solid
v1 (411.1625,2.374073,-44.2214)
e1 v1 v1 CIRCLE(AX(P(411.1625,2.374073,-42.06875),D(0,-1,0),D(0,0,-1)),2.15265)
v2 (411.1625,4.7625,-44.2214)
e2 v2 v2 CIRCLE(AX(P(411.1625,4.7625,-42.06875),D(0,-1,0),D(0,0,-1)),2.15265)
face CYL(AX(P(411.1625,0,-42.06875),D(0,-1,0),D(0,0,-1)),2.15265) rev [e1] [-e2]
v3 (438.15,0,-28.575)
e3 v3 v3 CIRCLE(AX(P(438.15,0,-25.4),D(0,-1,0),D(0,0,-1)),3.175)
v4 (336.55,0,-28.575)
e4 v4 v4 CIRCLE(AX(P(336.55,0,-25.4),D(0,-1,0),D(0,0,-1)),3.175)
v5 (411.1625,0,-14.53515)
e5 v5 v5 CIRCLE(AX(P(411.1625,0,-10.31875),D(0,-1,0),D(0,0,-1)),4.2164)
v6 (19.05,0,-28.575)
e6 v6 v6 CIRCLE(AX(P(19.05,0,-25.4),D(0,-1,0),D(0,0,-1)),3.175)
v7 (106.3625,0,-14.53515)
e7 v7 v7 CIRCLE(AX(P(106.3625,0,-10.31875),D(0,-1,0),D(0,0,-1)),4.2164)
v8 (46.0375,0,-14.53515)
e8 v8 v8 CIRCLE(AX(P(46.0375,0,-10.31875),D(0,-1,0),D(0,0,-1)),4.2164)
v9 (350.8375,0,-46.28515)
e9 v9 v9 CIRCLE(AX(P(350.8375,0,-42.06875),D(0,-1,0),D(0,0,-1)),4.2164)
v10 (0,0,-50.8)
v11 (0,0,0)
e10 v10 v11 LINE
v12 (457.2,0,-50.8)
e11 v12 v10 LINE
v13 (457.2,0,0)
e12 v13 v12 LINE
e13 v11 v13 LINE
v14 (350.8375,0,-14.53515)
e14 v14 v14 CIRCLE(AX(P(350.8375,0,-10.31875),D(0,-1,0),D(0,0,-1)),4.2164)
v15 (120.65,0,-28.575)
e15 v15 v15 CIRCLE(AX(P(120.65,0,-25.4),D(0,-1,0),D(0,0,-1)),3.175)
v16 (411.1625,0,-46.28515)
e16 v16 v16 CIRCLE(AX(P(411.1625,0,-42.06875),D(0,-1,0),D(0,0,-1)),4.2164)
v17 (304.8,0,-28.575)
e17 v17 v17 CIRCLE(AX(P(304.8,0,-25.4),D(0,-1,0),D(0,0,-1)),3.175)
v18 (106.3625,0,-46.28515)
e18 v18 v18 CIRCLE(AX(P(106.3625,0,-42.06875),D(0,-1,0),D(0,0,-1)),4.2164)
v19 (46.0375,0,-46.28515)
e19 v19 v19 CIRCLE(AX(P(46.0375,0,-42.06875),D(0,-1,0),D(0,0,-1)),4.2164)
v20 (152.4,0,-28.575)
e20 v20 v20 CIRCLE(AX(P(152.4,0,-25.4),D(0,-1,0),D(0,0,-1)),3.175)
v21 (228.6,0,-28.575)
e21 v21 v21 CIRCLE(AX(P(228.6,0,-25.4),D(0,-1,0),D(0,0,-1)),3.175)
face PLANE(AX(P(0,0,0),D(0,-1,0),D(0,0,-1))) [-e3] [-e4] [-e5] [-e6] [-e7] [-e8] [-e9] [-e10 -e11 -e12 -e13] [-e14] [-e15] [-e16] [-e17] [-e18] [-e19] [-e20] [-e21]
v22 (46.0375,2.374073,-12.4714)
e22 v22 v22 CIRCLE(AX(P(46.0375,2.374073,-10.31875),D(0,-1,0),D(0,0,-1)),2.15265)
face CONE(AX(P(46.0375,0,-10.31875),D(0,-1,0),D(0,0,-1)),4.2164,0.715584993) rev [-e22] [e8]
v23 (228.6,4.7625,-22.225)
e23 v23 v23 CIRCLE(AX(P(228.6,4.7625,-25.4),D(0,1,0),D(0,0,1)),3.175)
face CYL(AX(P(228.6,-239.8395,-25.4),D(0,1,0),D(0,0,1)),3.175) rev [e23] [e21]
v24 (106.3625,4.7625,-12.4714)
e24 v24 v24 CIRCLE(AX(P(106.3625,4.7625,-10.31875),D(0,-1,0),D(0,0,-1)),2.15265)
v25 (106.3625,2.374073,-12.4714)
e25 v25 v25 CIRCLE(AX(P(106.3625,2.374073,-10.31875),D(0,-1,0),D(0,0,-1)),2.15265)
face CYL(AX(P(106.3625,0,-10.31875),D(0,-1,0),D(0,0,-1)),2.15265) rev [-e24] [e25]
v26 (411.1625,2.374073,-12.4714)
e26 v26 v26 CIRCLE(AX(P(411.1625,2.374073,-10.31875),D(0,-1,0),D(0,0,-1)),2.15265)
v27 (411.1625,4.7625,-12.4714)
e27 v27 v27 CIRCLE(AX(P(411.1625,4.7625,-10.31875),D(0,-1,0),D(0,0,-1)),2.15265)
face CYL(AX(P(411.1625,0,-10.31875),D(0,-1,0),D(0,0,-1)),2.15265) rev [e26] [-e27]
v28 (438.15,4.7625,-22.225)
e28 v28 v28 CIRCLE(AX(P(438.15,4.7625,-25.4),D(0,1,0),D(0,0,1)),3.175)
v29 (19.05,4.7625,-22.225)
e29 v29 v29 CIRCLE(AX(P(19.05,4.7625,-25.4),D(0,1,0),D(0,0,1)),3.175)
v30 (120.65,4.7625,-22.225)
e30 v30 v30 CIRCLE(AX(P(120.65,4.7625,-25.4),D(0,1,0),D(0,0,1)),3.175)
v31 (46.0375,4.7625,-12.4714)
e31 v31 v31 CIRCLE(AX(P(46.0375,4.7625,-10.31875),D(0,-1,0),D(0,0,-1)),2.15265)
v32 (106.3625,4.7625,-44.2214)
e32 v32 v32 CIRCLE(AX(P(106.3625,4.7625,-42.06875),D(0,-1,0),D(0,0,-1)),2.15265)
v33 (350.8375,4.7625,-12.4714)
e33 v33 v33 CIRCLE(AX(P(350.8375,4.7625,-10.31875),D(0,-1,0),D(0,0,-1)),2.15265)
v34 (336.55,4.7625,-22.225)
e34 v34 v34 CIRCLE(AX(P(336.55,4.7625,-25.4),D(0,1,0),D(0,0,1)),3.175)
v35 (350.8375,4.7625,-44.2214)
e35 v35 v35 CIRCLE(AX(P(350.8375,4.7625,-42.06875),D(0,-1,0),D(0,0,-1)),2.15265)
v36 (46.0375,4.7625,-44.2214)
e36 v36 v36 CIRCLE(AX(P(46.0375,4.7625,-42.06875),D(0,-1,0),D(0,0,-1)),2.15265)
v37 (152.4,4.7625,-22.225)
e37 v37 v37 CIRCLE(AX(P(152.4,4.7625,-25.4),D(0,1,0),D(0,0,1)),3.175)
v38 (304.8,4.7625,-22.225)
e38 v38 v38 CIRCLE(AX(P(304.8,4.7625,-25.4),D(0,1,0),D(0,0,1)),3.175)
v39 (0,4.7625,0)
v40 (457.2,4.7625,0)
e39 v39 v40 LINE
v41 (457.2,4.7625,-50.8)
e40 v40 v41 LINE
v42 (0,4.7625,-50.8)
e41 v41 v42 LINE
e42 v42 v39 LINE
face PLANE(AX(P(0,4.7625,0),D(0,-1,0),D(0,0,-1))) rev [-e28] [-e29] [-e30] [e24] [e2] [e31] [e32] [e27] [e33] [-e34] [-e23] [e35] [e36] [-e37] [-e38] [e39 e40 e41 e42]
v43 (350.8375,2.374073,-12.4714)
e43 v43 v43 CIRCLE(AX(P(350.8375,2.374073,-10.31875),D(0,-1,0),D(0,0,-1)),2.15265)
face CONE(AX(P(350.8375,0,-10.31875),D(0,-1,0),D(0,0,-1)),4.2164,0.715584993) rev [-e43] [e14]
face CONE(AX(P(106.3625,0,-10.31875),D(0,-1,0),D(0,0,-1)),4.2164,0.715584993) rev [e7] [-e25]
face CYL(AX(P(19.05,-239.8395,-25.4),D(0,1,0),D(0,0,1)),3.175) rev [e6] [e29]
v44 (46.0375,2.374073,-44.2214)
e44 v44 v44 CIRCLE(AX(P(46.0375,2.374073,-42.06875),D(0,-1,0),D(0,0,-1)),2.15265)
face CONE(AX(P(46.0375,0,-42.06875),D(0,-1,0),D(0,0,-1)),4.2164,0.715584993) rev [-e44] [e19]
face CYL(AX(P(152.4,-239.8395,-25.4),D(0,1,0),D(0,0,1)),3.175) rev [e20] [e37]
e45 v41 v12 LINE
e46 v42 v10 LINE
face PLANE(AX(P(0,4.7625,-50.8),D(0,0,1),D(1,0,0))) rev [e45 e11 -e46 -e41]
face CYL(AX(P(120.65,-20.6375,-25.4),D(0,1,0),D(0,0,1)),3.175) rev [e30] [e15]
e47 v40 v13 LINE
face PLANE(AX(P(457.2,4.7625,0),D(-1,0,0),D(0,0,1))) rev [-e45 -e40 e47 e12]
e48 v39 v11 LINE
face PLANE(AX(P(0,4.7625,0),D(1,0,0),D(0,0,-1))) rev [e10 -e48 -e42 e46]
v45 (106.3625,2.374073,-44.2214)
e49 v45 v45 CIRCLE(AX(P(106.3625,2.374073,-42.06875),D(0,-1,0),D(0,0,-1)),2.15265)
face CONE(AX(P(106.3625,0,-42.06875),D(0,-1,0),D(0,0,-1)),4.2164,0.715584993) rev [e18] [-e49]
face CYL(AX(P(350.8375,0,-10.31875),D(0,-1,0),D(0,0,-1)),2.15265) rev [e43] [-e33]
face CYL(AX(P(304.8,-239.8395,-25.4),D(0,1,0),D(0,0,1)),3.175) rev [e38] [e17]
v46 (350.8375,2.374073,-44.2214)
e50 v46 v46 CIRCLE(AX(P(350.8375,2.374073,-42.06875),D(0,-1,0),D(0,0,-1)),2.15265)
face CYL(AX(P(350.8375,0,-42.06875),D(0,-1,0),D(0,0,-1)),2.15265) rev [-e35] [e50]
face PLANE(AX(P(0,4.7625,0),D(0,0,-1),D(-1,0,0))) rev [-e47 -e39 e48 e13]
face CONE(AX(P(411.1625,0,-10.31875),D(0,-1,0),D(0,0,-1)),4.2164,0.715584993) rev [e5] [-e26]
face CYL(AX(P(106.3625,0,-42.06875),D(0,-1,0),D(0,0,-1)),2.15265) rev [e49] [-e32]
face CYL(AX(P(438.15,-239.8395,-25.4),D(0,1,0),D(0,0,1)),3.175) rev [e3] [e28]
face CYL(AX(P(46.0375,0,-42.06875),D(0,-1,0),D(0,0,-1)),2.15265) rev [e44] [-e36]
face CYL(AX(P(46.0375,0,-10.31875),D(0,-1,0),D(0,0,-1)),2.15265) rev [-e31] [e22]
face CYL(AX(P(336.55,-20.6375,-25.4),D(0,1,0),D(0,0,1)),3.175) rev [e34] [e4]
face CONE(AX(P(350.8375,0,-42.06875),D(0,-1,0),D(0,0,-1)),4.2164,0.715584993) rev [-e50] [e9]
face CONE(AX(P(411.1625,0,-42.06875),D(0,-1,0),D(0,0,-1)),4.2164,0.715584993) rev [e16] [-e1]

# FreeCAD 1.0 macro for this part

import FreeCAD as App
import Part
import Sketcher

V = App.Vector
Q = App.Units.Quantity


def add_polygon(sketch, points):
    """Adds a closed chain of lines whose ends are joined by coincident constraints."""
    first, n = sketch.GeometryCount, len(points)
    for a, b in zip(points, points[1:] + points[:1]):
        sketch.addGeometry(Part.LineSegment(App.Vector(*a, 0), App.Vector(*b, 0)), False)
    for i in range(n):
        sketch.addConstraint(Sketcher.Constraint("Coincident", first + i, 2, first + (i + 1) % n, 1))

doc = App.newDocument("Part")
body = doc.addObject("PartDesign::Body", "Body")

# Sketch on XZ plane
sketch1 = body.newObject("Sketcher::SketchObject", "Sketch")
sketch1.AttachmentSupport = (doc.getObject("XZ_Plane"), [""])
sketch1.MapMode = "FlatFace"
add_polygon(sketch1, [(0, -50.8), (0, 0), (457.2, 0), (457.2, -50.8)])  # lines 0-3
sketch1.addConstraint(Sketcher.Constraint("Vertical", 0))
sketch1.addConstraint(Sketcher.Constraint("Horizontal", 1))
sketch1.addConstraint(Sketcher.Constraint("Vertical", 2))
sketch1.addConstraint(Sketcher.Constraint("Horizontal", 3))
sketch1.addConstraint(Sketcher.Constraint("Coincident", 0, 2, -1, 1))
sketch1.addConstraint(Sketcher.Constraint("DistanceX", 1, 1, 1, 2, Q("18 in")))
sketch1.addConstraint(Sketcher.Constraint("DistanceY", 0, 1, 0, 2, Q("2 in")))
pad1 = body.newObject("PartDesign::Pad", "Pad")
pad1.Profile = sketch1
pad1.Length = Q("0.1875 in")
pad1.Reversed = True

# Sketch on XZ plane
sketch2 = body.newObject("Sketcher::SketchObject", "Sketch001")
sketch2.AttachmentSupport = (doc.getObject("XZ_Plane"), [""])
sketch2.MapMode = "FlatFace"
sketch2.AttachmentOffset = App.Placement(V(0, 0, -0.1875 * 25.4), App.Rotation())
sketch2.addGeometry(Part.Circle(V(19.05, -25.4, 0), V(0, 0, 1), 3.175), False)
sketch2.addGeometry(Part.Circle(V(438.15, -25.4, 0), V(0, 0, 1), 3.175), False)
sketch2.addConstraint(Sketcher.Constraint("Equal", 0, 1))
sketch2.addConstraint(Sketcher.Constraint("Horizontal", 0, 3, 1, 3))
sketch2.addConstraint(Sketcher.Constraint("Diameter", 0, Q("0.25 in")))
sketch2.addConstraint(Sketcher.Constraint("DistanceY", 0, 3, -1, 1, Q("1 in")))
sketch2.addConstraint(Sketcher.Constraint("DistanceX", 0, 3, 1, 3, Q("16.5 in")))
sketch2.addConstraint(Sketcher.Constraint("DistanceX", -1, 1, 0, 3, Q("0.75 in")))
pocket1 = body.newObject("PartDesign::Pocket", "Pocket")
pocket1.Profile = sketch2
pocket1.Length = Q("9.63 in")
pocket1.Reversed = True

# Sketch on XZ plane
sketch3 = body.newObject("Sketcher::SketchObject", "Sketch002")
sketch3.AttachmentSupport = (doc.getObject("XZ_Plane"), [""])
sketch3.MapMode = "FlatFace"
sketch3.AttachmentOffset = App.Placement(V(0, 0, -0.1875 * 25.4), App.Rotation())
sketch3.addGeometry(Part.Circle(V(152.4, -25.4, 0), V(0, 0, 1), 3.175), False)
sketch3.addGeometry(Part.Circle(V(304.8, -25.4, 0), V(0, 0, 1), 3.175), False)
sketch3.addGeometry(Part.Circle(V(228.6, -25.4, 0), V(0, 0, 1), 3.175), False)
sketch3.addConstraint(Sketcher.Constraint("Equal", 0, 1))
sketch3.addConstraint(Sketcher.Constraint("Equal", 1, 2))
sketch3.addConstraint(Sketcher.Constraint("Horizontal", 0, 3, 1, 3))
sketch3.addConstraint(Sketcher.Constraint("Horizontal", 1, 3, 2, 3))
sketch3.addConstraint(Sketcher.Constraint("Diameter", 0, Q("0.25 in")))
sketch3.addConstraint(Sketcher.Constraint("DistanceX", -1, 1, 0, 3, Q("6 in")))
sketch3.addConstraint(Sketcher.Constraint("DistanceY", 0, 3, -1, 1, Q("1 in")))
sketch3.addConstraint(Sketcher.Constraint("DistanceX", -1, 1, 1, 3, Q("12 in")))
sketch3.addConstraint(Sketcher.Constraint("DistanceX", -1, 1, 2, 3, Q("9 in")))
pocket2 = body.newObject("PartDesign::Pocket", "Pocket001")
pocket2.Profile = sketch3
pocket2.Length = Q("9.63 in")
pocket2.Reversed = True

# Sketch on XZ plane
sketch4 = body.newObject("Sketcher::SketchObject", "Sketch003")
sketch4.AttachmentSupport = (doc.getObject("XZ_Plane"), [""])
sketch4.MapMode = "FlatFace"
sketch4.AttachmentOffset = App.Placement(V(0, 0, -0.1875 * 25.4), App.Rotation())
sketch4.addGeometry(Part.Circle(V(120.65, -25.4, 0), V(0, 0, 1), 3.175), False)
sketch4.addGeometry(Part.Circle(V(336.55, -25.4, 0), V(0, 0, 1), 3.175), False)
sketch4.addConstraint(Sketcher.Constraint("Equal", 0, 1))
sketch4.addConstraint(Sketcher.Constraint("Horizontal", 0, 3, 1, 3))
sketch4.addConstraint(Sketcher.Constraint("Diameter", 0, Q("0.25 in")))
sketch4.addConstraint(Sketcher.Constraint("DistanceY", 0, 3, -1, 1, Q("1 in")))
sketch4.addConstraint(Sketcher.Constraint("DistanceX", 0, 3, 1, 3, Q("8.5 in")))
sketch4.addConstraint(Sketcher.Constraint("DistanceX", -1, 1, 0, 3, Q("4.75 in")))
pocket3 = body.newObject("PartDesign::Pocket", "Pocket002")
pocket3.Profile = sketch4
pocket3.Length = Q("1 in")
pocket3.Reversed = True

# Sketch on YZ plane
sketch5 = body.newObject("Sketcher::SketchObject", "Sketch004")
sketch5.AttachmentSupport = (doc.getObject("YZ_Plane"), [""])
sketch5.MapMode = "FlatFace"
sketch5.AttachmentOffset = App.Placement(V(0, 0, 1.8125 * 25.4), App.Rotation())
add_polygon(sketch5, [(4.7625, -42.06875), (0, -42.06875), (0, -46.28515), (2.374073, -44.2214), (4.7625, -44.2214)])  # lines 0-4
sketch5.addGeometry(Part.LineSegment(V(0, -42.06875, 0), V(4.7625, -42.06875, 0)), True)  # axis
sketch5.addConstraint(Sketcher.Constraint("Horizontal", 0))
sketch5.addConstraint(Sketcher.Constraint("Vertical", 1))
sketch5.addConstraint(Sketcher.Constraint("Horizontal", 3))
sketch5.addConstraint(Sketcher.Constraint("Vertical", 4))
sketch5.addConstraint(Sketcher.Constraint("Horizontal", 5))
sketch5.addConstraint(Sketcher.Constraint("Coincident", 5, 1, 0, 2))
sketch5.addConstraint(Sketcher.Constraint("PointOnObject", 0, 2, -2))
sketch5.addConstraint(Sketcher.Constraint("Vertical", 3, 2, 5, 2))
sketch5.addConstraint(Sketcher.Constraint("Angle", 2, Q("41 deg")))
sketch5.addConstraint(Sketcher.Constraint("DistanceX", 0, 2, 0, 1, Q("0.1875 in")))
sketch5.addConstraint(Sketcher.Constraint("DistanceY", 1, 2, 1, 1, Q("0.166 in")))
sketch5.addConstraint(Sketcher.Constraint("DistanceY", 0, 2, -1, 1, Q("1.65625 in")))
sketch5.addConstraint(Sketcher.Constraint("DistanceY", 2, 2, -1, 1, Q("1.741 in")))
groove = body.newObject("PartDesign::Groove", "Groove")
groove.Profile = sketch5
groove.ReferenceAxis = (sketch5, ["Axis0"])
groove.Angle = 360
doc.recompute()

linearpattern = body.newObject("PartDesign::LinearPattern", "LinearPattern")
linearpattern.Originals = [groove]
linearpattern.Direction = (doc.getObject("Z_Axis"), [""])
linearpattern.Mode = "offset"
linearpattern.Offset = Q("1.25 in")
linearpattern.Occurrences = 2
body.Tip = linearpattern
doc.recompute()

datumline = body.newObject("PartDesign::Line", "DatumLine")
datumline.Placement = App.Placement(V(0, 0, 0), App.Rotation(V(0, 0, 1), V(0.884918222, 0, 0.465746433)))
linearpattern2 = body.newObject("PartDesign::LinearPattern", "LinearPattern001")
linearpattern2.Originals = [groove]
linearpattern2.Direction = (datumline, [""])
linearpattern2.Mode = "offset"
linearpattern2.Offset = 68.170141
linearpattern2.Occurrences = 2
body.Tip = linearpattern2
doc.recompute()

linearpattern3 = body.newObject("PartDesign::LinearPattern", "LinearPattern002")
linearpattern3.Originals = [groove]
linearpattern3.Direction = (doc.getObject("X_Axis"), [""])
linearpattern3.Mode = "offset"
linearpattern3.Offset = Q("2.375 in")
linearpattern3.Occurrences = 2
body.Tip = linearpattern3
doc.recompute()

linearpattern4 = body.newObject("PartDesign::LinearPattern", "LinearPattern003")
linearpattern4.Originals = [groove]
linearpattern4.Direction = (doc.getObject("X_Axis"), [""])
linearpattern4.Mode = "offset"
linearpattern4.Offset = Q("12 in")
linearpattern4.Occurrences = 2
body.Tip = linearpattern4
doc.recompute()

datumline2 = body.newObject("PartDesign::Line", "DatumLine001")
datumline2.Placement = App.Placement(V(0, 0, 0), App.Rotation(V(0, 0, 1), V(0.994618409, 0, 0.103606084)))
linearpattern5 = body.newObject("PartDesign::LinearPattern", "LinearPattern004")
linearpattern5.Originals = [groove]
linearpattern5.Direction = (datumline2, [""])
linearpattern5.Mode = "offset"
linearpattern5.Offset = 306.449184
linearpattern5.Occurrences = 2
body.Tip = linearpattern5
doc.recompute()

datumline3 = body.newObject("PartDesign::Line", "DatumLine002")
datumline3.Placement = App.Placement(V(0, 0, 0), App.Rotation(V(0, 0, 1), V(0.996240588, 0, 0.086629616)))
linearpattern6 = body.newObject("PartDesign::LinearPattern", "LinearPattern005")
linearpattern6.Originals = [groove]
linearpattern6.Direction = (datumline3, [""])
linearpattern6.Mode = "offset"
linearpattern6.Offset = 366.502835
linearpattern6.Occurrences = 2
body.Tip = linearpattern6
doc.recompute()

linearpattern7 = body.newObject("PartDesign::LinearPattern", "LinearPattern006")
linearpattern7.Originals = [groove]
linearpattern7.Direction = (doc.getObject("X_Axis"), [""])
linearpattern7.Mode = "offset"
linearpattern7.Offset = Q("14.375 in")
linearpattern7.Occurrences = 2
body.Tip = linearpattern7

doc.recompute()
